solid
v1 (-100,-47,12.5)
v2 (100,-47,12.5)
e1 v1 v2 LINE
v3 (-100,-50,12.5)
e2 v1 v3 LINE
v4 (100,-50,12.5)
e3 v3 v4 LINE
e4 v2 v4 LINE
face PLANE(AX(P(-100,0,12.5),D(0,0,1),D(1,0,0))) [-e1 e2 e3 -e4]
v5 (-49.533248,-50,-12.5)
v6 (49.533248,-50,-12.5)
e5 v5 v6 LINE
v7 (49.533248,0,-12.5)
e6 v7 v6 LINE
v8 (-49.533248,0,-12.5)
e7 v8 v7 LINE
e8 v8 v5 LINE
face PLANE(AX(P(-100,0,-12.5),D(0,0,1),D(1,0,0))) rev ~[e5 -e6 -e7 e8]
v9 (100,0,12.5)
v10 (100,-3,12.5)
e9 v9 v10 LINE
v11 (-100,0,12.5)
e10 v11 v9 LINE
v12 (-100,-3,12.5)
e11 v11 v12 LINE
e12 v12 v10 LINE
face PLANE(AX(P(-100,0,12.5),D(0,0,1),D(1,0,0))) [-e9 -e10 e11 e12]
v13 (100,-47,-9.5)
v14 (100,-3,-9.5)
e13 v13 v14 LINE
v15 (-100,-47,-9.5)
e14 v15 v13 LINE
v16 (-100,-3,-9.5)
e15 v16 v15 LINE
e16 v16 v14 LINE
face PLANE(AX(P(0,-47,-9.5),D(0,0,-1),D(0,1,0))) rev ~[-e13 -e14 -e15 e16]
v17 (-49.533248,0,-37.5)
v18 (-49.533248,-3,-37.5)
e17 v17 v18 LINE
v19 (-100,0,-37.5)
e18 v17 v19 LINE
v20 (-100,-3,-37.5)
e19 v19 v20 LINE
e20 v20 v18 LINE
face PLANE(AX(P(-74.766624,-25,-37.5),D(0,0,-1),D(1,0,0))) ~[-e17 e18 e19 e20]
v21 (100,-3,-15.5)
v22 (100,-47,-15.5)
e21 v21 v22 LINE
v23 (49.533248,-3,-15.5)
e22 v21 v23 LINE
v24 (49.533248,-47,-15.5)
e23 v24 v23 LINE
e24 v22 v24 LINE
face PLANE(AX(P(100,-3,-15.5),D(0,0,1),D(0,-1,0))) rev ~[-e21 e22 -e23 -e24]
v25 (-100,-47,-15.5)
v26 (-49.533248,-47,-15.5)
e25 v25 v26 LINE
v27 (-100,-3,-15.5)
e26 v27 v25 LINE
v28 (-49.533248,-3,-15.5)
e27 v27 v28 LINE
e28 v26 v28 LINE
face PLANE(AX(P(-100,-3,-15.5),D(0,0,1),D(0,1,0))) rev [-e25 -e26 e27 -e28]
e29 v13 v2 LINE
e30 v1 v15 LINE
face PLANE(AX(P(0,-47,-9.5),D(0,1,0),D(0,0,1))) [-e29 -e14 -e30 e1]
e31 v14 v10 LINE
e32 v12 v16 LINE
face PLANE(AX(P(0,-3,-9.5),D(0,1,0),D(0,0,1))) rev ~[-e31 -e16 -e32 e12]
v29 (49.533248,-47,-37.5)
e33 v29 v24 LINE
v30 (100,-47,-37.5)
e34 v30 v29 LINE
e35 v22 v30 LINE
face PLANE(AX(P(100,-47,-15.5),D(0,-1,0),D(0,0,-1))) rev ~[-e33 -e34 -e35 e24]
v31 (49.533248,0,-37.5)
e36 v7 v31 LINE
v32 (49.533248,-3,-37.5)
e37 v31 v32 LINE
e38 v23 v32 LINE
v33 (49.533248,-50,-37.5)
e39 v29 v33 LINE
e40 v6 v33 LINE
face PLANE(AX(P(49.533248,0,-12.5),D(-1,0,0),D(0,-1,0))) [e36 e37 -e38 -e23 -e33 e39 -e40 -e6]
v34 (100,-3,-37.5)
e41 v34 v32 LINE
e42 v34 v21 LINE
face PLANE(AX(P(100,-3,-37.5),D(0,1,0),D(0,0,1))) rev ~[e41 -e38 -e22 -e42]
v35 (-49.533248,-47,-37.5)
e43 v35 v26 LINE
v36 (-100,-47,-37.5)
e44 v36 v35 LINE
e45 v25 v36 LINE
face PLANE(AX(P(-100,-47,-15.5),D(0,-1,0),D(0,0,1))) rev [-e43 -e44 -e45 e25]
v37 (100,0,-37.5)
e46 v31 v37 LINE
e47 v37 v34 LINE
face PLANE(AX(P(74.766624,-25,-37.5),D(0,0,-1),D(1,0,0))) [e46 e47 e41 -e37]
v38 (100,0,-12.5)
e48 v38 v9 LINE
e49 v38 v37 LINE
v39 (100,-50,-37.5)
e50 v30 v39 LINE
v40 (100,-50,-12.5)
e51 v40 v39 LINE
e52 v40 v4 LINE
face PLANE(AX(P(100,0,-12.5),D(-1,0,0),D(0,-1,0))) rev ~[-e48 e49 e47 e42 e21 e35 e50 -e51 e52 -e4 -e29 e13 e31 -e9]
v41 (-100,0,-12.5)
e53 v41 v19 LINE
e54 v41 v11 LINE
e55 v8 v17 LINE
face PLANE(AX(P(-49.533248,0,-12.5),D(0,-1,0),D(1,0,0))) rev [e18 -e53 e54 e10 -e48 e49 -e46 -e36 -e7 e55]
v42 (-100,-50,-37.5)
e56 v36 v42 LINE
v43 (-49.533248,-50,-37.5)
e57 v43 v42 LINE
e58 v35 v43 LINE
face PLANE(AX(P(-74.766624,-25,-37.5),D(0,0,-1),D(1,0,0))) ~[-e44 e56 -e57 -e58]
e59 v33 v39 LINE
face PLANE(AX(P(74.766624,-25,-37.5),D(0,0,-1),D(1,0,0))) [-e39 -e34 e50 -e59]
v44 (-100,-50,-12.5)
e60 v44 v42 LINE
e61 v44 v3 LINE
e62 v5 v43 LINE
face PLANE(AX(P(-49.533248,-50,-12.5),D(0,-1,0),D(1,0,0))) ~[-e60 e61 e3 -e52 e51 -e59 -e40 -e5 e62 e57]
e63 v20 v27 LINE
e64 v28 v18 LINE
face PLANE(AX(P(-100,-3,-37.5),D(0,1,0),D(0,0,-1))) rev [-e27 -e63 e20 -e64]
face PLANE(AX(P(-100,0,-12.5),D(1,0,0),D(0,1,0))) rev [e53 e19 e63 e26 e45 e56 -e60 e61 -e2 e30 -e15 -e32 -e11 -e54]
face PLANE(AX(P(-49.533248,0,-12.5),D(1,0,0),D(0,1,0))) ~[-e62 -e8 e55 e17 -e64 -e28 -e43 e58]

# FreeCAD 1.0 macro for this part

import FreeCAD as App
import Part
import Sketcher

doc = App.newDocument("Part")
body = doc.addObject("PartDesign::Body", "Body")

# Sketch on XZ plane
sketch1 = doc.addObject("Sketcher::SketchObject", "Sketch")
body.addObject(sketch1)
sketch1.AttachmentSupport = (doc.XZ_Plane, [""])
sketch1.MapMode = "FlatFace"
sketch1.addGeometry([
    Part.LineSegment(App.Vector(-100, 12.5, 0), App.Vector(-100, -12.5, 0)),
    Part.LineSegment(App.Vector(-100, -12.5, 0), App.Vector(100, -12.5, 0)),
    Part.LineSegment(App.Vector(100, -12.5, 0), App.Vector(100, 12.5, 0)),
    Part.LineSegment(App.Vector(100, 12.5, 0), App.Vector(-100, 12.5, 0)),
], False)
sketch1.addConstraint([
    Sketcher.Constraint("Coincident", 0, 2, 1, 1),
    Sketcher.Constraint("Coincident", 1, 2, 2, 1),
    Sketcher.Constraint("Coincident", 2, 2, 3, 1),
    Sketcher.Constraint("Coincident", 3, 2, 0, 1),
    Sketcher.Constraint("Vertical", 0),
    Sketcher.Constraint("Horizontal", 1),
    Sketcher.Constraint("Vertical", 2),
    Sketcher.Constraint("Horizontal", 3),
    Sketcher.Constraint("Symmetric", 0, 2, 2, 2, -1, 1),
    Sketcher.Constraint("DistanceX", 1, 1, 1, 2, 200.0),
    Sketcher.Constraint("DistanceY", 0, 2, 0, 1, 25.0),
])
pad1 = doc.addObject("PartDesign::Pad", "Pad")
body.addObject(pad1)
pad1.Profile = sketch1
pad1.Length = 50

# Sketch on YZ plane
sketch2 = doc.addObject("Sketcher::SketchObject", "Sketch001")
body.addObject(sketch2)
sketch2.AttachmentSupport = (doc.YZ_Plane, [""])
sketch2.MapMode = "FlatFace"
sketch2.addGeometry([
    Part.LineSegment(App.Vector(-47, 12.5, 0), App.Vector(-47, -9.5, 0)),
    Part.LineSegment(App.Vector(-47, -9.5, 0), App.Vector(-3, -9.5, 0)),
    Part.LineSegment(App.Vector(-3, -9.5, 0), App.Vector(-3, 12.5, 0)),
    Part.LineSegment(App.Vector(-3, 12.5, 0), App.Vector(-47, 12.5, 0)),
], False)
sketch2.addConstraint([
    Sketcher.Constraint("Coincident", 0, 2, 1, 1),
    Sketcher.Constraint("Coincident", 1, 2, 2, 1),
    Sketcher.Constraint("Coincident", 2, 2, 3, 1),
    Sketcher.Constraint("Coincident", 3, 2, 0, 1),
    Sketcher.Constraint("Vertical", 0),
    Sketcher.Constraint("Horizontal", 1),
    Sketcher.Constraint("Vertical", 2),
    Sketcher.Constraint("Horizontal", 3),
    Sketcher.Constraint("DistanceX", 1, 1, 1, 2, 44.0),
    Sketcher.Constraint("DistanceY", 0, 2, 0, 1, 22.0),
    Sketcher.Constraint("DistanceX", 0, 2, -1, 1, 47.0),
    Sketcher.Constraint("DistanceY", 0, 2, -1, 1, 9.5),
])
pocket1 = doc.addObject("PartDesign::Pocket", "Pocket")
body.addObject(pocket1)
pocket1.Profile = sketch2
pocket1.Type = "ThroughAll"
pocket1.Reversed = True

# Sketch on YZ plane
sketch3 = doc.addObject("Sketcher::SketchObject", "Sketch002")
body.addObject(sketch3)
sketch3.AttachmentSupport = (doc.YZ_Plane, [""])
sketch3.MapMode = "FlatFace"
sketch3.addGeometry([
    Part.LineSegment(App.Vector(-47, 12.5, 0), App.Vector(-47, -9.5, 0)),
    Part.LineSegment(App.Vector(-47, -9.5, 0), App.Vector(-3, -9.5, 0)),
    Part.LineSegment(App.Vector(-3, -9.5, 0), App.Vector(-3, 12.5, 0)),
    Part.LineSegment(App.Vector(-3, 12.5, 0), App.Vector(-47, 12.5, 0)),
], False)
sketch3.addConstraint([
    Sketcher.Constraint("Coincident", 0, 2, 1, 1),
    Sketcher.Constraint("Coincident", 1, 2, 2, 1),
    Sketcher.Constraint("Coincident", 2, 2, 3, 1),
    Sketcher.Constraint("Coincident", 3, 2, 0, 1),
    Sketcher.Constraint("Vertical", 0),
    Sketcher.Constraint("Horizontal", 1),
    Sketcher.Constraint("Vertical", 2),
    Sketcher.Constraint("Horizontal", 3),
    Sketcher.Constraint("DistanceX", 1, 1, 1, 2, 44.0),
    Sketcher.Constraint("DistanceY", 0, 2, 0, 1, 22.0),
    Sketcher.Constraint("DistanceX", 0, 2, -1, 1, 47.0),
    Sketcher.Constraint("DistanceY", 0, 2, -1, 1, 9.5),
])
pocket2 = doc.addObject("PartDesign::Pocket", "Pocket001")
body.addObject(pocket2)
pocket2.Profile = sketch3
pocket2.Type = "ThroughAll"

# Sketch on XY plane
sketch4 = doc.addObject("Sketcher::SketchObject", "Sketch003")
body.addObject(sketch4)
sketch4.AttachmentSupport = (doc.XY_Plane, [""])
sketch4.MapMode = "FlatFace"
sketch4.AttachmentOffset = App.Placement(App.Vector(0, 0, -12.5), App.Rotation())
sketch4.addGeometry([
    Part.LineSegment(App.Vector(49.533248, -50, 0), App.Vector(49.533248, 0, 0)),
    Part.LineSegment(App.Vector(49.533248, 0, 0), App.Vector(100, 0, 0)),
    Part.LineSegment(App.Vector(100, 0, 0), App.Vector(100, -50, 0)),
    Part.LineSegment(App.Vector(100, -50, 0), App.Vector(49.533248, -50, 0)),
], False)
sketch4.addConstraint([
    Sketcher.Constraint("Coincident", 0, 2, 1, 1),
    Sketcher.Constraint("Coincident", 1, 2, 2, 1),
    Sketcher.Constraint("Coincident", 2, 2, 3, 1),
    Sketcher.Constraint("Coincident", 3, 2, 0, 1),
    Sketcher.Constraint("Vertical", 0),
    Sketcher.Constraint("Horizontal", 1),
    Sketcher.Constraint("Vertical", 2),
    Sketcher.Constraint("Horizontal", 3),
    Sketcher.Constraint("PointOnObject", 0, 2, -1),
    Sketcher.Constraint("DistanceY", 0, 1, 0, 2, 50.0),
    Sketcher.Constraint("DistanceX", -1, 1, 1, 2, 100.0),
    Sketcher.Constraint("DistanceX", 1, 1, 1, 2, 50.466752),
])
pad2 = doc.addObject("PartDesign::Pad", "Pad001")
body.addObject(pad2)
pad2.Profile = sketch4
pad2.Length = 25
pad2.Reversed = True

# Sketch on YZ plane
sketch5 = doc.addObject("Sketcher::SketchObject", "Sketch004")
body.addObject(sketch5)
sketch5.AttachmentSupport = (doc.YZ_Plane, [""])
sketch5.MapMode = "FlatFace"
sketch5.AttachmentOffset = App.Placement(App.Vector(0, 0, 100), App.Rotation())
sketch5.addGeometry([
    Part.LineSegment(App.Vector(-47, -37.5, 0), App.Vector(-3, -37.5, 0)),
    Part.LineSegment(App.Vector(-3, -37.5, 0), App.Vector(-3, -15.5, 0)),
    Part.LineSegment(App.Vector(-3, -15.5, 0), App.Vector(-47, -15.5, 0)),
    Part.LineSegment(App.Vector(-47, -15.5, 0), App.Vector(-47, -37.5, 0)),
], False)
sketch5.addConstraint([
    Sketcher.Constraint("Coincident", 0, 2, 1, 1),
    Sketcher.Constraint("Coincident", 1, 2, 2, 1),
    Sketcher.Constraint("Coincident", 2, 2, 3, 1),
    Sketcher.Constraint("Coincident", 3, 2, 0, 1),
    Sketcher.Constraint("Horizontal", 0),
    Sketcher.Constraint("Vertical", 1),
    Sketcher.Constraint("Horizontal", 2),
    Sketcher.Constraint("Vertical", 3),
    Sketcher.Constraint("DistanceX", 0, 1, 0, 2, 44.0),
    Sketcher.Constraint("DistanceY", 1, 1, 1, 2, 22.0),
    Sketcher.Constraint("DistanceX", 0, 2, -1, 1, 3.0),
    Sketcher.Constraint("DistanceY", 0, 2, -1, 1, 37.5),
])
pocket3 = doc.addObject("PartDesign::Pocket", "Pocket002")
body.addObject(pocket3)
pocket3.Profile = sketch5
pocket3.Type = "ThroughAll"
body2 = doc.addObject("PartDesign::Body", "Body001")
doc.recompute()

body2.BaseFeature = body
doc.recompute()

mirroring = doc.addObject("Part::Mirroring", "Mirroring")
mirroring.Source = body
mirroring.Base = App.Vector(0, 0, 0)
mirroring.Normal = App.Vector(1, 0, 0)
body3 = doc.addObject("PartDesign::Body", "Body002")
body3.BaseFeature = mirroring
boolean = doc.addObject("PartDesign::Boolean", "Boolean")
body2.addObject(boolean)
boolean.Type = "Fuse"
boolean.addObjects([body3])
doc.recompute()
mirroring.Visibility = False

doc.recompute()
